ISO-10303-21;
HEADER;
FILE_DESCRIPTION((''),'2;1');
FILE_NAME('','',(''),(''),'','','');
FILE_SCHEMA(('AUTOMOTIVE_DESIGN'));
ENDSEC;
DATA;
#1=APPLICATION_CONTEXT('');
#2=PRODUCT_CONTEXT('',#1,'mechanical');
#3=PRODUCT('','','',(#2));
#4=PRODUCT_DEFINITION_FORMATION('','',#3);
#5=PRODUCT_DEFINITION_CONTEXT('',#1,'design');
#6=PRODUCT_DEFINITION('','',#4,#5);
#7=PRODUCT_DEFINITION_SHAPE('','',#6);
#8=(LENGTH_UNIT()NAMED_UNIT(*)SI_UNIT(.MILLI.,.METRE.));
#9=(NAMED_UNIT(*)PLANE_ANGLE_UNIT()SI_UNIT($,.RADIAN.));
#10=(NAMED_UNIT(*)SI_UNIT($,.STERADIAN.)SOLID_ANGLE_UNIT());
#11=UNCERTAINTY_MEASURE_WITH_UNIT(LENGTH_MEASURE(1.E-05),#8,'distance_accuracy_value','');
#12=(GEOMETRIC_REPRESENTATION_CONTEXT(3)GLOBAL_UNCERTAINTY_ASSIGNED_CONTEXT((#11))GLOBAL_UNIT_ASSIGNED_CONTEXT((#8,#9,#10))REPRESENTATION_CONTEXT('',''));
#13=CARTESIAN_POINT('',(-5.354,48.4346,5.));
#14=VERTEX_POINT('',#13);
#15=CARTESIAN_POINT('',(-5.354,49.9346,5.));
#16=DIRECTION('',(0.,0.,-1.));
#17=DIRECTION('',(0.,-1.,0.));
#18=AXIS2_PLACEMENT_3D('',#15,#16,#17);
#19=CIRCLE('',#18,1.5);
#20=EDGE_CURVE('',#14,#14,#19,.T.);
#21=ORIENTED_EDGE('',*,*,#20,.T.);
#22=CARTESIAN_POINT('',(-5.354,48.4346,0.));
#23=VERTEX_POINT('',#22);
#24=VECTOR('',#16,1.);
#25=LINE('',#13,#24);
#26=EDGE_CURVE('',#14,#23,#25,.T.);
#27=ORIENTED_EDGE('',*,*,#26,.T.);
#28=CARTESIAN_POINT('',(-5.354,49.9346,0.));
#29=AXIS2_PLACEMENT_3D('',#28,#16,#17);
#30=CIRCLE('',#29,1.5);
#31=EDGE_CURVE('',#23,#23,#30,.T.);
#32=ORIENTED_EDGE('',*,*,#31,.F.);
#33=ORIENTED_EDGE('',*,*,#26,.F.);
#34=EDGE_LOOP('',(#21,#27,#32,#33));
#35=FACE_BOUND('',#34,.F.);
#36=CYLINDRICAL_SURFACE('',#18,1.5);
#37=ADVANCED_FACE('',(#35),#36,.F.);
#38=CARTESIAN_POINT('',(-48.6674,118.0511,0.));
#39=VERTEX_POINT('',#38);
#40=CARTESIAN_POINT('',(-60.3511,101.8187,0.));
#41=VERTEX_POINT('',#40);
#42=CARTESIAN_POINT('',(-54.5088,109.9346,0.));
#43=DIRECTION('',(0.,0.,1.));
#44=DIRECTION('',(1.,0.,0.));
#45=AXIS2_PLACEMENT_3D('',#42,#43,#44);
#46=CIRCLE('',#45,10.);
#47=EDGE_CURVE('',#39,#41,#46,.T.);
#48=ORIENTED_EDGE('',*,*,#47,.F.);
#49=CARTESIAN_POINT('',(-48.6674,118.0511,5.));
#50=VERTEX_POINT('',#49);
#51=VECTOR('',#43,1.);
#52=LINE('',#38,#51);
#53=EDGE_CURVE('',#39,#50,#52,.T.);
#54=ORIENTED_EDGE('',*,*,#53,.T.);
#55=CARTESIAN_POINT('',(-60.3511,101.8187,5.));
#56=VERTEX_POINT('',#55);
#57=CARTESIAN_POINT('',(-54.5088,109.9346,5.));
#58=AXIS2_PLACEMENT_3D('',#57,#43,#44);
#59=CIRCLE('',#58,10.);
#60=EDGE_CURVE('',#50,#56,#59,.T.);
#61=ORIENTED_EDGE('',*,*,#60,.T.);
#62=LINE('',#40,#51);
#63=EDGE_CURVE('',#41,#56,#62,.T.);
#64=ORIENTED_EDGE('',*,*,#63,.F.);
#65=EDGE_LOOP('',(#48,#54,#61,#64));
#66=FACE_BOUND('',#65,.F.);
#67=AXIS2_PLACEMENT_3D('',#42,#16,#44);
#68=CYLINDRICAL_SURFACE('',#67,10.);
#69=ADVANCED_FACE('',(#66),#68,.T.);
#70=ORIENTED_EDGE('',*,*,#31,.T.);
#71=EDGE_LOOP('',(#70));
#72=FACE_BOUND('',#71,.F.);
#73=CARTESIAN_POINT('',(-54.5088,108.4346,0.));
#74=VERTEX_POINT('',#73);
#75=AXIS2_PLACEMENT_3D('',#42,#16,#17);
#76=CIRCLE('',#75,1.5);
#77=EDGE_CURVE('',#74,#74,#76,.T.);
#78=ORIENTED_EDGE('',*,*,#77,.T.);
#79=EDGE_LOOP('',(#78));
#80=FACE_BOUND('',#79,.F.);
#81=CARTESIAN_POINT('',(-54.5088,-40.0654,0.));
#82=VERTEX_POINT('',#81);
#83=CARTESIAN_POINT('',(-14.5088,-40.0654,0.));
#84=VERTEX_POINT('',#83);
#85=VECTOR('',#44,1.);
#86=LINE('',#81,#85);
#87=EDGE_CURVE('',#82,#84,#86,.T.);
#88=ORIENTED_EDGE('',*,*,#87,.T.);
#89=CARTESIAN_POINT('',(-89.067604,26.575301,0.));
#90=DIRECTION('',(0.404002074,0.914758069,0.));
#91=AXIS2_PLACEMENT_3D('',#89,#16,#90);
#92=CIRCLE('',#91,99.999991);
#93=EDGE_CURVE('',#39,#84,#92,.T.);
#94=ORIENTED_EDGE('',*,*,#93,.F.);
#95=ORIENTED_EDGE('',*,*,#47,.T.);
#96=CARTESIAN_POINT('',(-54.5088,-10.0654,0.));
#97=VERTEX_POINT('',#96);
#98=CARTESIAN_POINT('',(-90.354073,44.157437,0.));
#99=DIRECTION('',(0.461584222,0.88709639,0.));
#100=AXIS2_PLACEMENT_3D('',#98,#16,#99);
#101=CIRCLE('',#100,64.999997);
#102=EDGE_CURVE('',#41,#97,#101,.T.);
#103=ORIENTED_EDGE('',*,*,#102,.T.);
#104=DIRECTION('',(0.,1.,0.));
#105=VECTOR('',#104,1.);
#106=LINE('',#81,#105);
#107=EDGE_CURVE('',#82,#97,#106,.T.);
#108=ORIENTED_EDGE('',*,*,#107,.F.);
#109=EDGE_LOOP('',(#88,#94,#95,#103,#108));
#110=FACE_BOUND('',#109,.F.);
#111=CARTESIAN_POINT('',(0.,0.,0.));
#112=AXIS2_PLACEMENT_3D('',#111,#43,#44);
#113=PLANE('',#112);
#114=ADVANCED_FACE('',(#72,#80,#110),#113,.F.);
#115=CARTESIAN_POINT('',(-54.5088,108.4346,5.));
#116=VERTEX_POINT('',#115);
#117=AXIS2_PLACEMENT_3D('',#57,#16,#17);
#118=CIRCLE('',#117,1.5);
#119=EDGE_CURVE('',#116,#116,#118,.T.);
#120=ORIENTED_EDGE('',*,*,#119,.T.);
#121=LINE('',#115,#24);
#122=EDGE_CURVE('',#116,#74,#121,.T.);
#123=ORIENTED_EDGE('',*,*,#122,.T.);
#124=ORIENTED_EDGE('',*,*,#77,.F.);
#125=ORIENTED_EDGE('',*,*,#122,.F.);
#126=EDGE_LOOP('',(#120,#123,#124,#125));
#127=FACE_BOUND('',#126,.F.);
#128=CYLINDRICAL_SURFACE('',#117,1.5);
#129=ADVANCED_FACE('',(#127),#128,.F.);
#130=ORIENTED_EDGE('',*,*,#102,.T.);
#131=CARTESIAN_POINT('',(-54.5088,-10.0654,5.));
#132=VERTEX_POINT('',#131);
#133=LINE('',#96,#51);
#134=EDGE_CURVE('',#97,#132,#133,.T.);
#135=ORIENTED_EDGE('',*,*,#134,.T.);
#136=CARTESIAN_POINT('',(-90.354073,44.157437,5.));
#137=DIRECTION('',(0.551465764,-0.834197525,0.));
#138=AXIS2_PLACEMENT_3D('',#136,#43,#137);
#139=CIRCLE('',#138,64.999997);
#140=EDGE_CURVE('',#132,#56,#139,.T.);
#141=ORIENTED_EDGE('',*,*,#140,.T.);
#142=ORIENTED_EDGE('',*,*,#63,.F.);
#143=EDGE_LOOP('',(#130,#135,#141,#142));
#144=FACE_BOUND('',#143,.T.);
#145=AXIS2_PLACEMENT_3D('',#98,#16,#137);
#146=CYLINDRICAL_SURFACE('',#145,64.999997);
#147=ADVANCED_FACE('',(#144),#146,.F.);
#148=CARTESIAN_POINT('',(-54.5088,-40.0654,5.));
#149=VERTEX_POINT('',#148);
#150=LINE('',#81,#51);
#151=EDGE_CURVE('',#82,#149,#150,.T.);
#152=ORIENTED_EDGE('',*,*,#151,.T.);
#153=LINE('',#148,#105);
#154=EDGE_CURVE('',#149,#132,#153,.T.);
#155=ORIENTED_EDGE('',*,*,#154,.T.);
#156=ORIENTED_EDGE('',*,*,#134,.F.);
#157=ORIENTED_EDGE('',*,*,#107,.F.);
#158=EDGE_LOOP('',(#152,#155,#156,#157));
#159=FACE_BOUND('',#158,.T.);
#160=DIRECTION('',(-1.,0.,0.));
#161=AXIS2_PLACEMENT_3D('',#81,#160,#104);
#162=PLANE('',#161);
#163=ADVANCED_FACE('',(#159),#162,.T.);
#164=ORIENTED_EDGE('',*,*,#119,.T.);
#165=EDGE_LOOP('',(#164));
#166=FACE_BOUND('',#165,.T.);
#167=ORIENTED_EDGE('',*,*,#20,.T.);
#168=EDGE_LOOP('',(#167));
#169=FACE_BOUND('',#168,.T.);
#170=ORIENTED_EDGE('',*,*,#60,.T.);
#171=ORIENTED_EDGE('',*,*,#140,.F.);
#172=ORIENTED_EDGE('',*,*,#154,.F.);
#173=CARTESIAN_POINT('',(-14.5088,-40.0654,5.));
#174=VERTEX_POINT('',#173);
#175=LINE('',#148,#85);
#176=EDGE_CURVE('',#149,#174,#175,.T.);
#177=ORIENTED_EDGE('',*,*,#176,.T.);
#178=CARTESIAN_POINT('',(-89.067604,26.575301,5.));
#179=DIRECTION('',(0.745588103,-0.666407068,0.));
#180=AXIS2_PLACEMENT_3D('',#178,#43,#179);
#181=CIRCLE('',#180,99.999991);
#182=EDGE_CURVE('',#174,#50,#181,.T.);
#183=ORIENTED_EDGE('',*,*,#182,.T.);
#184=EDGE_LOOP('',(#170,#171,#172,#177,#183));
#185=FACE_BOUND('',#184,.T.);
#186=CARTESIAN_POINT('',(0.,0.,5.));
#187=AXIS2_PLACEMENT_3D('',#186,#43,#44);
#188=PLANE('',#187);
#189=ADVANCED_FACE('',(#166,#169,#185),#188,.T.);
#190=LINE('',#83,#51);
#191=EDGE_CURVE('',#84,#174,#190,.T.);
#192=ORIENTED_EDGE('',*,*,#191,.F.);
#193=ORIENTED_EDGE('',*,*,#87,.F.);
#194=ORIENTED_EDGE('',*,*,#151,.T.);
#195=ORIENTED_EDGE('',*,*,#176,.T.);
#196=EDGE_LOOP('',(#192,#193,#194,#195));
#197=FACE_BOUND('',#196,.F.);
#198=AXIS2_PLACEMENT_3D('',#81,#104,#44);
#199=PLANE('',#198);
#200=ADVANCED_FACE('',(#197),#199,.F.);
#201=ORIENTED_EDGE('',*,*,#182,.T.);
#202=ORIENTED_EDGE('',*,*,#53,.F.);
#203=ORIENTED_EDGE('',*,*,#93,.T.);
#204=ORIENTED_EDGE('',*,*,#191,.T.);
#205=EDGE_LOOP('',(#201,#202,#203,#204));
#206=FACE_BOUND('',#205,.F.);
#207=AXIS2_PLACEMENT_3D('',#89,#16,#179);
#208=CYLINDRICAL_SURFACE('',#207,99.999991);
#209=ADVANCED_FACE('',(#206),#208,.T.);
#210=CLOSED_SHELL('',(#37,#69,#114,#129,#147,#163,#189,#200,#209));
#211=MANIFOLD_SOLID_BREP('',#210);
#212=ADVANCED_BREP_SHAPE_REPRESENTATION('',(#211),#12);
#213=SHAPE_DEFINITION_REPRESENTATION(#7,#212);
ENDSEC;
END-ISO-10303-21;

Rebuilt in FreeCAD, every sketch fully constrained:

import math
import FreeCAD as App
import Part
import Sketcher
from FreeCAD import Vector

doc = App.newDocument("Part")
body = doc.addObject("PartDesign::Body", "Body")

# Sketch on XY plane
sketch1 = doc.addObject("Sketcher::SketchObject", "Sketch")
body.addObject(sketch1)
sketch1.AttachmentSupport = (doc.XY_Plane, [""])
sketch1.MapMode = "FlatFace"
sketch1.addGeometry([
    Part.LineSegment(Vector(-55, -10, 0), Vector(-55, -40, 0)),  # 0
    Part.LineSegment(Vector(-55, -40, 0), Vector(-15, -40, 0)),  # 1
    Part.ArcOfCircle(Part.Circle(Vector(-89, 27, 0), Vector(0, 0, 1), 100), math.radians(-42), math.radians(66)),  # 2
    Part.ArcOfCircle(Part.Circle(Vector(-55, 110, 0), Vector(0, 0, 1), 10), math.radians(54), math.radians(234)),  # 3
    Part.ArcOfCircle(Part.Circle(Vector(-90, 44, 0), Vector(0, 0, 1), 65), math.radians(-57), math.radians(63)),  # 4
], False)
sketch1.addConstraint([
    Sketcher.Constraint("Coincident", 0, 2, 1, 1),
    Sketcher.Constraint("Coincident", 1, 2, 2, 1),
    Sketcher.Constraint("Coincident", 2, 2, 3, 1),
    Sketcher.Constraint("Coincident", 3, 2, 4, 2),
    Sketcher.Constraint("Coincident", 4, 1, 0, 1),
    Sketcher.Constraint("Vertical", 0),
    Sketcher.Constraint("Horizontal", 1),
    Sketcher.Constraint("Vertical", 3, 3, 0, 2),
    Sketcher.Constraint("Radius", 2, 100.0),
    Sketcher.Constraint("Radius", 3, 10.0),
    Sketcher.Constraint("Radius", 4, 65.0),
    Sketcher.Constraint("DistanceX", 1, 1, 1, 2, 40.0),
    Sketcher.Constraint("DistanceY", 0, 2, 0, 1, 30.0),
    Sketcher.Constraint("DistanceY", 0, 2, 3, 3, 150.0),
    Sketcher.Constraint("DistanceX", 4, 3, -1, 1, 90.354),
    Sketcher.Constraint("DistanceY", -1, 1, 2, 2, 118.051),
    Sketcher.Constraint("DistanceX", 3, 2, -1, 1, 60.351),
    Sketcher.Constraint("DistanceY", 2, 3, 4, 3, 17.582),
])
pad1 = doc.addObject("PartDesign::Pad", "Pad")
body.addObject(pad1)
pad1.Profile = sketch1
pad1.Length = 5

# Sketch on XY plane
sketch2 = doc.addObject("Sketcher::SketchObject", "Sketch001")
body.addObject(sketch2)
sketch2.AttachmentSupport = (doc.XY_Plane, [""])
sketch2.MapMode = "FlatFace"
sketch2.AttachmentOffset = App.Placement(Vector(0, 0, 5), App.Rotation())
sketch2.addGeometry(Part.Circle(Vector(-54.5, 109.9, 0), Vector(0, 0, 1), 1.5), False)
sketch2.addConstraint([
    Sketcher.Constraint("Diameter", 0, 3.0),
    Sketcher.Constraint("DistanceX", 0, 3, -1, 1, 54.5088),
    Sketcher.Constraint("DistanceY", -1, 1, 0, 3, 109.9346),
])
doc.recompute()
hole = doc.addObject("PartDesign::Hole", "Hole")
body.addObject(hole)
hole.Profile = sketch2
hole.ThreadType = "None"
hole.Diameter = 3
hole.DepthType = "ThroughAll"

# Sketch on XY plane
sketch3 = doc.addObject("Sketcher::SketchObject", "Sketch002")
body.addObject(sketch3)
sketch3.AttachmentSupport = (doc.XY_Plane, [""])
sketch3.MapMode = "FlatFace"
sketch3.AttachmentOffset = App.Placement(Vector(0, 0, 5), App.Rotation())
sketch3.addGeometry(Part.Circle(Vector(-5.4, 49.9, 0), Vector(0, 0, 1), 1.5), False)
sketch3.addConstraint([
    Sketcher.Constraint("Diameter", 0, 3.0),
    Sketcher.Constraint("DistanceX", 0, 3, -1, 1, 5.354),
    Sketcher.Constraint("DistanceY", -1, 1, 0, 3, 49.9346),
])
doc.recompute()
hole2 = doc.addObject("PartDesign::Hole", "Hole001")
body.addObject(hole2)
hole2.Profile = sketch3
hole2.ThreadType = "None"
hole2.Diameter = 3
hole2.DepthType = "ThroughAll"

doc.recompute()
